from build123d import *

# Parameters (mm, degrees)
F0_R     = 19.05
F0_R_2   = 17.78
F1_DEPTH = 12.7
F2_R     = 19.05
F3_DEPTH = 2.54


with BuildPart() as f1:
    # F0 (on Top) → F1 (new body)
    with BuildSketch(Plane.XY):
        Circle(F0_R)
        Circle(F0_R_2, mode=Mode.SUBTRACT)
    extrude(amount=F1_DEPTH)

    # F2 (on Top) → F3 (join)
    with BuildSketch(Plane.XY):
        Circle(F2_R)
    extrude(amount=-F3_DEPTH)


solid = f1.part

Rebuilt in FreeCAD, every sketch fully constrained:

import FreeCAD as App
import Part
import Sketcher
Q = App.Units.Quantity

doc = App.newDocument("Part")
body = doc.addObject("PartDesign::Body", "Body")

# Sketch on XY plane
sketch1 = doc.addObject("Sketcher::SketchObject", "Sketch")
body.addObject(sketch1)
sketch1.AttachmentSupport = (doc.XY_Plane, [""])
sketch1.MapMode = "FlatFace"
sketch1.addGeometry([
    Part.Circle(App.Vector(0, 0, 0), App.Vector(0, 0, 1), 19.05),
    Part.Circle(App.Vector(0, 0, 0), App.Vector(0, 0, 1), 17.78),
], False)
sketch1.addConstraint([
    Sketcher.Constraint("Coincident", 0, 3, -1, 1),
    Sketcher.Constraint("Coincident", 1, 3, -1, 1),
    Sketcher.Constraint("Diameter", 0, Q("1.5 in")),
    Sketcher.Constraint("Diameter", 1, Q("1.4 in")),
])
pad1 = doc.addObject("PartDesign::Pad", "Pad")
body.addObject(pad1)
pad1.Profile = sketch1
pad1.Length = Q("0.5 in")

# Sketch on XY plane
sketch2 = doc.addObject("Sketcher::SketchObject", "Sketch001")
body.addObject(sketch2)
sketch2.AttachmentSupport = (doc.XY_Plane, [""])
sketch2.MapMode = "FlatFace"
sketch2.addGeometry(Part.Circle(App.Vector(0, 0, 0), App.Vector(0, 0, 1), 19.05), False)
sketch2.addConstraint([
    Sketcher.Constraint("Coincident", 0, 3, -1, 1),
    Sketcher.Constraint("Diameter", 0, Q("1.5 in")),
])
pad2 = doc.addObject("PartDesign::Pad", "Pad001")
body.addObject(pad2)
pad2.Profile = sketch2
pad2.Length = Q("0.1 in")
pad2.Reversed = True

doc.recompute()
